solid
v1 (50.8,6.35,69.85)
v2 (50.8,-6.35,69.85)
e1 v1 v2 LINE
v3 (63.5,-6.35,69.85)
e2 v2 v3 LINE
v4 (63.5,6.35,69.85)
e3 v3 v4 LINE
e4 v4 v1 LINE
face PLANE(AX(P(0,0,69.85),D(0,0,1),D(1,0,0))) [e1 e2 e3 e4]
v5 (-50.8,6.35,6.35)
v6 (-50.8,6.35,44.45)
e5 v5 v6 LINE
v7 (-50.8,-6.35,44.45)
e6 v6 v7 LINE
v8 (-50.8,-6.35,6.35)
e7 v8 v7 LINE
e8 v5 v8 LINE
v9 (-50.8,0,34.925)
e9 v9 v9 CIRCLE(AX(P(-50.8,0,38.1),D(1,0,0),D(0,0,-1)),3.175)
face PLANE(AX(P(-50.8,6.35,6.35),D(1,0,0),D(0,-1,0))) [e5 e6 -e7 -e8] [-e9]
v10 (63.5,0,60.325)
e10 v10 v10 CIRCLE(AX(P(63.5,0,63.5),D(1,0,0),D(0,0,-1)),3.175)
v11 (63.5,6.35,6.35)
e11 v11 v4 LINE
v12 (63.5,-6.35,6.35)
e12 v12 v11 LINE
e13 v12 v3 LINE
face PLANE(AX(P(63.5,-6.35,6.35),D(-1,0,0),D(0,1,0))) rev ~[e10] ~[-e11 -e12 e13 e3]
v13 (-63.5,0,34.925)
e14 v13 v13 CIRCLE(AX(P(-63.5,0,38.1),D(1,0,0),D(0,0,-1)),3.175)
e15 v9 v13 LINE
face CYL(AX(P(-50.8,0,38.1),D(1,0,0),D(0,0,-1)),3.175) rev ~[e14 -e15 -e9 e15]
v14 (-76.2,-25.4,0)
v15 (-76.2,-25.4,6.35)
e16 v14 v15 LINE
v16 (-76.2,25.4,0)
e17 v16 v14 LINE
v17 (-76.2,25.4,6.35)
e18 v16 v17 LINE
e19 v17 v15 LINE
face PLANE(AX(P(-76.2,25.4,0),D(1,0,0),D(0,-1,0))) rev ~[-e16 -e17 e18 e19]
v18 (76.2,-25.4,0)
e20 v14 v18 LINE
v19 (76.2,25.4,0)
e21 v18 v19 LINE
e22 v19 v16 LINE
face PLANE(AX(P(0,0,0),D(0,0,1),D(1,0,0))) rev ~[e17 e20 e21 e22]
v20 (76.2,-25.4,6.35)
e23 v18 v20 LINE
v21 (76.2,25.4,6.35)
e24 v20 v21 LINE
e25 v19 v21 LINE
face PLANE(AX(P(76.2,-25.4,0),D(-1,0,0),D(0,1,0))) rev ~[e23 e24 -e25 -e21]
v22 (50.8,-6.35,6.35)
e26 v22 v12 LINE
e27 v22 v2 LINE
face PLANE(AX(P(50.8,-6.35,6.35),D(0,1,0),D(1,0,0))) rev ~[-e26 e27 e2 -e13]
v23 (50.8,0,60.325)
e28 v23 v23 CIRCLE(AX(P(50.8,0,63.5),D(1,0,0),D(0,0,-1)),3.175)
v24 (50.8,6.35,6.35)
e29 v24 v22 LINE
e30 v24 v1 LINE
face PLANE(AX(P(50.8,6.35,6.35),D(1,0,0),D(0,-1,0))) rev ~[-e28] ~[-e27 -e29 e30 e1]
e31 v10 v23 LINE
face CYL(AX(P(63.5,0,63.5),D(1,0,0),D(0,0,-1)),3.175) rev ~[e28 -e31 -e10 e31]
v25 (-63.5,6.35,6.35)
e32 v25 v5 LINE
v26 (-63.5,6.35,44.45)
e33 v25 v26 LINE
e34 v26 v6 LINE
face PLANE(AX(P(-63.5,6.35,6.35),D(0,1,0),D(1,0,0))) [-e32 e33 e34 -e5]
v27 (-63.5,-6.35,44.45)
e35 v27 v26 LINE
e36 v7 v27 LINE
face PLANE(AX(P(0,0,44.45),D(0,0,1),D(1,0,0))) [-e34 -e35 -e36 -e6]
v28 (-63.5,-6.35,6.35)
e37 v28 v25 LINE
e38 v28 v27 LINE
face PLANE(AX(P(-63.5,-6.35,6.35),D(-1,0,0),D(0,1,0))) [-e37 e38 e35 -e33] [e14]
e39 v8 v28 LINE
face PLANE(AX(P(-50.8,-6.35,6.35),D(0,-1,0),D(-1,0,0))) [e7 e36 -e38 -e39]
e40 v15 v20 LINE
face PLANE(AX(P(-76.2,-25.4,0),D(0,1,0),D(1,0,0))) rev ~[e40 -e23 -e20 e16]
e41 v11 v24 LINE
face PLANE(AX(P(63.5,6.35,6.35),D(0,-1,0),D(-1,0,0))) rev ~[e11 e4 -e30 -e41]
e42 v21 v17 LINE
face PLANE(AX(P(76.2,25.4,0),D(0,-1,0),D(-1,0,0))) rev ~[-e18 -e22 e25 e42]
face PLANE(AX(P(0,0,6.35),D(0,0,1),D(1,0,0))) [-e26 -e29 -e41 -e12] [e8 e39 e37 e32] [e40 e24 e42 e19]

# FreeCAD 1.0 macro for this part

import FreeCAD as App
import Part
import Sketcher

V = App.Vector
Q = App.Units.Quantity


def add_polygon(sketch, points):
    """Adds a closed chain of lines whose ends are joined by coincident constraints."""
    first, n = sketch.GeometryCount, len(points)
    for a, b in zip(points, points[1:] + points[:1]):
        sketch.addGeometry(Part.LineSegment(App.Vector(*a, 0), App.Vector(*b, 0)), False)
    for i in range(n):
        sketch.addConstraint(Sketcher.Constraint("Coincident", first + i, 2, first + (i + 1) % n, 1))

doc = App.newDocument("Part")
body = doc.addObject("PartDesign::Body", "Body")

# Sketch on XY plane
sketch1 = body.newObject("Sketcher::SketchObject", "Sketch")
sketch1.AttachmentSupport = (doc.getObject("XY_Plane"), [""])
sketch1.MapMode = "FlatFace"
add_polygon(sketch1, [(-76.2, 25.4), (-76.2, -25.4), (76.2, -25.4), (76.2, 25.4)])  # lines 0-3
sketch1.addConstraint([
    Sketcher.Constraint("Vertical", 0),
    Sketcher.Constraint("Horizontal", 1),
    Sketcher.Constraint("Vertical", 2),
    Sketcher.Constraint("Horizontal", 3),
    Sketcher.Constraint("Symmetric", 0, 2, 2, 2, -1, 1),
    Sketcher.Constraint("DistanceX", 1, 1, 1, 2, Q("6 in")),
    Sketcher.Constraint("DistanceY", 0, 2, 0, 1, Q("2 in")),
])
pad1 = body.newObject("PartDesign::Pad", "Pad")
pad1.Profile = sketch1
pad1.Length = Q("0.25 in")

# Sketch on XY plane
sketch2 = body.newObject("Sketcher::SketchObject", "Sketch001")
sketch2.AttachmentSupport = (doc.getObject("XY_Plane"), [""])
sketch2.MapMode = "FlatFace"
sketch2.AttachmentOffset = App.Placement(V(0, 0, 0.25 * 25.4), App.Rotation())
add_polygon(sketch2, [(-50.8, 6.35), (-63.5, 6.35), (-63.5, -6.35), (-50.8, -6.35)])  # lines 0-3
sketch2.addConstraint([
    Sketcher.Constraint("Horizontal", 0),
    Sketcher.Constraint("Vertical", 1),
    Sketcher.Constraint("Horizontal", 2),
    Sketcher.Constraint("Vertical", 3),
    Sketcher.Constraint("Equal", 2, 1),
    Sketcher.Constraint("DistanceX", 0, 2, 0, 1, Q("0.5 in")),
    Sketcher.Constraint("DistanceY", -1, 1, 0, 2, Q("0.25 in")),
    Sketcher.Constraint("DistanceX", 2, 2, -1, 1, Q("2 in")),
])
pad2 = body.newObject("PartDesign::Pad", "Pad001")
pad2.Profile = sketch2
pad2.Length = Q("1.5 in")

# Sketch on XY plane
sketch3 = body.newObject("Sketcher::SketchObject", "Sketch002")
sketch3.AttachmentSupport = (doc.getObject("XY_Plane"), [""])
sketch3.MapMode = "FlatFace"
sketch3.AttachmentOffset = App.Placement(V(0, 0, 0.25 * 25.4), App.Rotation())
add_polygon(sketch3, [(50.8, 6.35), (50.8, -6.35), (63.5, -6.35), (63.5, 6.35)])  # lines 0-3
sketch3.addConstraint([
    Sketcher.Constraint("Vertical", 0),
    Sketcher.Constraint("Horizontal", 1),
    Sketcher.Constraint("Vertical", 2),
    Sketcher.Constraint("Horizontal", 3),
    Sketcher.Constraint("Equal", 3, 0),
    Sketcher.Constraint("DistanceX", 1, 1, 1, 2, Q("0.5 in")),
    Sketcher.Constraint("DistanceY", 0, 2, -1, 1, Q("0.25 in")),
    Sketcher.Constraint("DistanceX", -1, 1, 0, 2, Q("2 in")),
])
pad3 = body.newObject("PartDesign::Pad", "Pad002")
pad3.Profile = sketch3
pad3.Length = Q("2.5 in")

# Sketch on YZ plane
sketch4 = body.newObject("Sketcher::SketchObject", "Sketch003")
sketch4.AttachmentSupport = (doc.getObject("YZ_Plane"), [""])
sketch4.MapMode = "FlatFace"
sketch4.AttachmentOffset = App.Placement(V(0, 0, 2.5 * 25.4), App.Rotation())
sketch4.addGeometry(Part.Circle(V(0, 63.5, 0), V(0, 0, 1), 3.175), False)
sketch4.addConstraint([
    Sketcher.Constraint("PointOnObject", 0, 3, -2),
    Sketcher.Constraint("Diameter", 0, Q("0.25 in")),
    Sketcher.Constraint("DistanceY", -1, 1, 0, 3, Q("2.5 in")),
])
pocket1 = body.newObject("PartDesign::Pocket", "Pocket")
pocket1.Profile = sketch4
pocket1.Type = "ThroughAll"

# Sketch on YZ plane
sketch5 = body.newObject("Sketcher::SketchObject", "Sketch004")
sketch5.AttachmentSupport = (doc.getObject("YZ_Plane"), [""])
sketch5.MapMode = "FlatFace"
sketch5.AttachmentOffset = App.Placement(V(0, 0, -2 * 25.4), App.Rotation())
sketch5.addGeometry(Part.Circle(V(0, 38.1, 0), V(0, 0, 1), 3.175), False)
sketch5.addConstraint([
    Sketcher.Constraint("PointOnObject", 0, 3, -2),
    Sketcher.Constraint("Diameter", 0, Q("0.25 in")),
    Sketcher.Constraint("DistanceY", -1, 1, 0, 3, Q("1.5 in")),
])
pocket2 = body.newObject("PartDesign::Pocket", "Pocket001")
pocket2.Profile = sketch5
pocket2.Type = "ThroughAll"

doc.recompute()
